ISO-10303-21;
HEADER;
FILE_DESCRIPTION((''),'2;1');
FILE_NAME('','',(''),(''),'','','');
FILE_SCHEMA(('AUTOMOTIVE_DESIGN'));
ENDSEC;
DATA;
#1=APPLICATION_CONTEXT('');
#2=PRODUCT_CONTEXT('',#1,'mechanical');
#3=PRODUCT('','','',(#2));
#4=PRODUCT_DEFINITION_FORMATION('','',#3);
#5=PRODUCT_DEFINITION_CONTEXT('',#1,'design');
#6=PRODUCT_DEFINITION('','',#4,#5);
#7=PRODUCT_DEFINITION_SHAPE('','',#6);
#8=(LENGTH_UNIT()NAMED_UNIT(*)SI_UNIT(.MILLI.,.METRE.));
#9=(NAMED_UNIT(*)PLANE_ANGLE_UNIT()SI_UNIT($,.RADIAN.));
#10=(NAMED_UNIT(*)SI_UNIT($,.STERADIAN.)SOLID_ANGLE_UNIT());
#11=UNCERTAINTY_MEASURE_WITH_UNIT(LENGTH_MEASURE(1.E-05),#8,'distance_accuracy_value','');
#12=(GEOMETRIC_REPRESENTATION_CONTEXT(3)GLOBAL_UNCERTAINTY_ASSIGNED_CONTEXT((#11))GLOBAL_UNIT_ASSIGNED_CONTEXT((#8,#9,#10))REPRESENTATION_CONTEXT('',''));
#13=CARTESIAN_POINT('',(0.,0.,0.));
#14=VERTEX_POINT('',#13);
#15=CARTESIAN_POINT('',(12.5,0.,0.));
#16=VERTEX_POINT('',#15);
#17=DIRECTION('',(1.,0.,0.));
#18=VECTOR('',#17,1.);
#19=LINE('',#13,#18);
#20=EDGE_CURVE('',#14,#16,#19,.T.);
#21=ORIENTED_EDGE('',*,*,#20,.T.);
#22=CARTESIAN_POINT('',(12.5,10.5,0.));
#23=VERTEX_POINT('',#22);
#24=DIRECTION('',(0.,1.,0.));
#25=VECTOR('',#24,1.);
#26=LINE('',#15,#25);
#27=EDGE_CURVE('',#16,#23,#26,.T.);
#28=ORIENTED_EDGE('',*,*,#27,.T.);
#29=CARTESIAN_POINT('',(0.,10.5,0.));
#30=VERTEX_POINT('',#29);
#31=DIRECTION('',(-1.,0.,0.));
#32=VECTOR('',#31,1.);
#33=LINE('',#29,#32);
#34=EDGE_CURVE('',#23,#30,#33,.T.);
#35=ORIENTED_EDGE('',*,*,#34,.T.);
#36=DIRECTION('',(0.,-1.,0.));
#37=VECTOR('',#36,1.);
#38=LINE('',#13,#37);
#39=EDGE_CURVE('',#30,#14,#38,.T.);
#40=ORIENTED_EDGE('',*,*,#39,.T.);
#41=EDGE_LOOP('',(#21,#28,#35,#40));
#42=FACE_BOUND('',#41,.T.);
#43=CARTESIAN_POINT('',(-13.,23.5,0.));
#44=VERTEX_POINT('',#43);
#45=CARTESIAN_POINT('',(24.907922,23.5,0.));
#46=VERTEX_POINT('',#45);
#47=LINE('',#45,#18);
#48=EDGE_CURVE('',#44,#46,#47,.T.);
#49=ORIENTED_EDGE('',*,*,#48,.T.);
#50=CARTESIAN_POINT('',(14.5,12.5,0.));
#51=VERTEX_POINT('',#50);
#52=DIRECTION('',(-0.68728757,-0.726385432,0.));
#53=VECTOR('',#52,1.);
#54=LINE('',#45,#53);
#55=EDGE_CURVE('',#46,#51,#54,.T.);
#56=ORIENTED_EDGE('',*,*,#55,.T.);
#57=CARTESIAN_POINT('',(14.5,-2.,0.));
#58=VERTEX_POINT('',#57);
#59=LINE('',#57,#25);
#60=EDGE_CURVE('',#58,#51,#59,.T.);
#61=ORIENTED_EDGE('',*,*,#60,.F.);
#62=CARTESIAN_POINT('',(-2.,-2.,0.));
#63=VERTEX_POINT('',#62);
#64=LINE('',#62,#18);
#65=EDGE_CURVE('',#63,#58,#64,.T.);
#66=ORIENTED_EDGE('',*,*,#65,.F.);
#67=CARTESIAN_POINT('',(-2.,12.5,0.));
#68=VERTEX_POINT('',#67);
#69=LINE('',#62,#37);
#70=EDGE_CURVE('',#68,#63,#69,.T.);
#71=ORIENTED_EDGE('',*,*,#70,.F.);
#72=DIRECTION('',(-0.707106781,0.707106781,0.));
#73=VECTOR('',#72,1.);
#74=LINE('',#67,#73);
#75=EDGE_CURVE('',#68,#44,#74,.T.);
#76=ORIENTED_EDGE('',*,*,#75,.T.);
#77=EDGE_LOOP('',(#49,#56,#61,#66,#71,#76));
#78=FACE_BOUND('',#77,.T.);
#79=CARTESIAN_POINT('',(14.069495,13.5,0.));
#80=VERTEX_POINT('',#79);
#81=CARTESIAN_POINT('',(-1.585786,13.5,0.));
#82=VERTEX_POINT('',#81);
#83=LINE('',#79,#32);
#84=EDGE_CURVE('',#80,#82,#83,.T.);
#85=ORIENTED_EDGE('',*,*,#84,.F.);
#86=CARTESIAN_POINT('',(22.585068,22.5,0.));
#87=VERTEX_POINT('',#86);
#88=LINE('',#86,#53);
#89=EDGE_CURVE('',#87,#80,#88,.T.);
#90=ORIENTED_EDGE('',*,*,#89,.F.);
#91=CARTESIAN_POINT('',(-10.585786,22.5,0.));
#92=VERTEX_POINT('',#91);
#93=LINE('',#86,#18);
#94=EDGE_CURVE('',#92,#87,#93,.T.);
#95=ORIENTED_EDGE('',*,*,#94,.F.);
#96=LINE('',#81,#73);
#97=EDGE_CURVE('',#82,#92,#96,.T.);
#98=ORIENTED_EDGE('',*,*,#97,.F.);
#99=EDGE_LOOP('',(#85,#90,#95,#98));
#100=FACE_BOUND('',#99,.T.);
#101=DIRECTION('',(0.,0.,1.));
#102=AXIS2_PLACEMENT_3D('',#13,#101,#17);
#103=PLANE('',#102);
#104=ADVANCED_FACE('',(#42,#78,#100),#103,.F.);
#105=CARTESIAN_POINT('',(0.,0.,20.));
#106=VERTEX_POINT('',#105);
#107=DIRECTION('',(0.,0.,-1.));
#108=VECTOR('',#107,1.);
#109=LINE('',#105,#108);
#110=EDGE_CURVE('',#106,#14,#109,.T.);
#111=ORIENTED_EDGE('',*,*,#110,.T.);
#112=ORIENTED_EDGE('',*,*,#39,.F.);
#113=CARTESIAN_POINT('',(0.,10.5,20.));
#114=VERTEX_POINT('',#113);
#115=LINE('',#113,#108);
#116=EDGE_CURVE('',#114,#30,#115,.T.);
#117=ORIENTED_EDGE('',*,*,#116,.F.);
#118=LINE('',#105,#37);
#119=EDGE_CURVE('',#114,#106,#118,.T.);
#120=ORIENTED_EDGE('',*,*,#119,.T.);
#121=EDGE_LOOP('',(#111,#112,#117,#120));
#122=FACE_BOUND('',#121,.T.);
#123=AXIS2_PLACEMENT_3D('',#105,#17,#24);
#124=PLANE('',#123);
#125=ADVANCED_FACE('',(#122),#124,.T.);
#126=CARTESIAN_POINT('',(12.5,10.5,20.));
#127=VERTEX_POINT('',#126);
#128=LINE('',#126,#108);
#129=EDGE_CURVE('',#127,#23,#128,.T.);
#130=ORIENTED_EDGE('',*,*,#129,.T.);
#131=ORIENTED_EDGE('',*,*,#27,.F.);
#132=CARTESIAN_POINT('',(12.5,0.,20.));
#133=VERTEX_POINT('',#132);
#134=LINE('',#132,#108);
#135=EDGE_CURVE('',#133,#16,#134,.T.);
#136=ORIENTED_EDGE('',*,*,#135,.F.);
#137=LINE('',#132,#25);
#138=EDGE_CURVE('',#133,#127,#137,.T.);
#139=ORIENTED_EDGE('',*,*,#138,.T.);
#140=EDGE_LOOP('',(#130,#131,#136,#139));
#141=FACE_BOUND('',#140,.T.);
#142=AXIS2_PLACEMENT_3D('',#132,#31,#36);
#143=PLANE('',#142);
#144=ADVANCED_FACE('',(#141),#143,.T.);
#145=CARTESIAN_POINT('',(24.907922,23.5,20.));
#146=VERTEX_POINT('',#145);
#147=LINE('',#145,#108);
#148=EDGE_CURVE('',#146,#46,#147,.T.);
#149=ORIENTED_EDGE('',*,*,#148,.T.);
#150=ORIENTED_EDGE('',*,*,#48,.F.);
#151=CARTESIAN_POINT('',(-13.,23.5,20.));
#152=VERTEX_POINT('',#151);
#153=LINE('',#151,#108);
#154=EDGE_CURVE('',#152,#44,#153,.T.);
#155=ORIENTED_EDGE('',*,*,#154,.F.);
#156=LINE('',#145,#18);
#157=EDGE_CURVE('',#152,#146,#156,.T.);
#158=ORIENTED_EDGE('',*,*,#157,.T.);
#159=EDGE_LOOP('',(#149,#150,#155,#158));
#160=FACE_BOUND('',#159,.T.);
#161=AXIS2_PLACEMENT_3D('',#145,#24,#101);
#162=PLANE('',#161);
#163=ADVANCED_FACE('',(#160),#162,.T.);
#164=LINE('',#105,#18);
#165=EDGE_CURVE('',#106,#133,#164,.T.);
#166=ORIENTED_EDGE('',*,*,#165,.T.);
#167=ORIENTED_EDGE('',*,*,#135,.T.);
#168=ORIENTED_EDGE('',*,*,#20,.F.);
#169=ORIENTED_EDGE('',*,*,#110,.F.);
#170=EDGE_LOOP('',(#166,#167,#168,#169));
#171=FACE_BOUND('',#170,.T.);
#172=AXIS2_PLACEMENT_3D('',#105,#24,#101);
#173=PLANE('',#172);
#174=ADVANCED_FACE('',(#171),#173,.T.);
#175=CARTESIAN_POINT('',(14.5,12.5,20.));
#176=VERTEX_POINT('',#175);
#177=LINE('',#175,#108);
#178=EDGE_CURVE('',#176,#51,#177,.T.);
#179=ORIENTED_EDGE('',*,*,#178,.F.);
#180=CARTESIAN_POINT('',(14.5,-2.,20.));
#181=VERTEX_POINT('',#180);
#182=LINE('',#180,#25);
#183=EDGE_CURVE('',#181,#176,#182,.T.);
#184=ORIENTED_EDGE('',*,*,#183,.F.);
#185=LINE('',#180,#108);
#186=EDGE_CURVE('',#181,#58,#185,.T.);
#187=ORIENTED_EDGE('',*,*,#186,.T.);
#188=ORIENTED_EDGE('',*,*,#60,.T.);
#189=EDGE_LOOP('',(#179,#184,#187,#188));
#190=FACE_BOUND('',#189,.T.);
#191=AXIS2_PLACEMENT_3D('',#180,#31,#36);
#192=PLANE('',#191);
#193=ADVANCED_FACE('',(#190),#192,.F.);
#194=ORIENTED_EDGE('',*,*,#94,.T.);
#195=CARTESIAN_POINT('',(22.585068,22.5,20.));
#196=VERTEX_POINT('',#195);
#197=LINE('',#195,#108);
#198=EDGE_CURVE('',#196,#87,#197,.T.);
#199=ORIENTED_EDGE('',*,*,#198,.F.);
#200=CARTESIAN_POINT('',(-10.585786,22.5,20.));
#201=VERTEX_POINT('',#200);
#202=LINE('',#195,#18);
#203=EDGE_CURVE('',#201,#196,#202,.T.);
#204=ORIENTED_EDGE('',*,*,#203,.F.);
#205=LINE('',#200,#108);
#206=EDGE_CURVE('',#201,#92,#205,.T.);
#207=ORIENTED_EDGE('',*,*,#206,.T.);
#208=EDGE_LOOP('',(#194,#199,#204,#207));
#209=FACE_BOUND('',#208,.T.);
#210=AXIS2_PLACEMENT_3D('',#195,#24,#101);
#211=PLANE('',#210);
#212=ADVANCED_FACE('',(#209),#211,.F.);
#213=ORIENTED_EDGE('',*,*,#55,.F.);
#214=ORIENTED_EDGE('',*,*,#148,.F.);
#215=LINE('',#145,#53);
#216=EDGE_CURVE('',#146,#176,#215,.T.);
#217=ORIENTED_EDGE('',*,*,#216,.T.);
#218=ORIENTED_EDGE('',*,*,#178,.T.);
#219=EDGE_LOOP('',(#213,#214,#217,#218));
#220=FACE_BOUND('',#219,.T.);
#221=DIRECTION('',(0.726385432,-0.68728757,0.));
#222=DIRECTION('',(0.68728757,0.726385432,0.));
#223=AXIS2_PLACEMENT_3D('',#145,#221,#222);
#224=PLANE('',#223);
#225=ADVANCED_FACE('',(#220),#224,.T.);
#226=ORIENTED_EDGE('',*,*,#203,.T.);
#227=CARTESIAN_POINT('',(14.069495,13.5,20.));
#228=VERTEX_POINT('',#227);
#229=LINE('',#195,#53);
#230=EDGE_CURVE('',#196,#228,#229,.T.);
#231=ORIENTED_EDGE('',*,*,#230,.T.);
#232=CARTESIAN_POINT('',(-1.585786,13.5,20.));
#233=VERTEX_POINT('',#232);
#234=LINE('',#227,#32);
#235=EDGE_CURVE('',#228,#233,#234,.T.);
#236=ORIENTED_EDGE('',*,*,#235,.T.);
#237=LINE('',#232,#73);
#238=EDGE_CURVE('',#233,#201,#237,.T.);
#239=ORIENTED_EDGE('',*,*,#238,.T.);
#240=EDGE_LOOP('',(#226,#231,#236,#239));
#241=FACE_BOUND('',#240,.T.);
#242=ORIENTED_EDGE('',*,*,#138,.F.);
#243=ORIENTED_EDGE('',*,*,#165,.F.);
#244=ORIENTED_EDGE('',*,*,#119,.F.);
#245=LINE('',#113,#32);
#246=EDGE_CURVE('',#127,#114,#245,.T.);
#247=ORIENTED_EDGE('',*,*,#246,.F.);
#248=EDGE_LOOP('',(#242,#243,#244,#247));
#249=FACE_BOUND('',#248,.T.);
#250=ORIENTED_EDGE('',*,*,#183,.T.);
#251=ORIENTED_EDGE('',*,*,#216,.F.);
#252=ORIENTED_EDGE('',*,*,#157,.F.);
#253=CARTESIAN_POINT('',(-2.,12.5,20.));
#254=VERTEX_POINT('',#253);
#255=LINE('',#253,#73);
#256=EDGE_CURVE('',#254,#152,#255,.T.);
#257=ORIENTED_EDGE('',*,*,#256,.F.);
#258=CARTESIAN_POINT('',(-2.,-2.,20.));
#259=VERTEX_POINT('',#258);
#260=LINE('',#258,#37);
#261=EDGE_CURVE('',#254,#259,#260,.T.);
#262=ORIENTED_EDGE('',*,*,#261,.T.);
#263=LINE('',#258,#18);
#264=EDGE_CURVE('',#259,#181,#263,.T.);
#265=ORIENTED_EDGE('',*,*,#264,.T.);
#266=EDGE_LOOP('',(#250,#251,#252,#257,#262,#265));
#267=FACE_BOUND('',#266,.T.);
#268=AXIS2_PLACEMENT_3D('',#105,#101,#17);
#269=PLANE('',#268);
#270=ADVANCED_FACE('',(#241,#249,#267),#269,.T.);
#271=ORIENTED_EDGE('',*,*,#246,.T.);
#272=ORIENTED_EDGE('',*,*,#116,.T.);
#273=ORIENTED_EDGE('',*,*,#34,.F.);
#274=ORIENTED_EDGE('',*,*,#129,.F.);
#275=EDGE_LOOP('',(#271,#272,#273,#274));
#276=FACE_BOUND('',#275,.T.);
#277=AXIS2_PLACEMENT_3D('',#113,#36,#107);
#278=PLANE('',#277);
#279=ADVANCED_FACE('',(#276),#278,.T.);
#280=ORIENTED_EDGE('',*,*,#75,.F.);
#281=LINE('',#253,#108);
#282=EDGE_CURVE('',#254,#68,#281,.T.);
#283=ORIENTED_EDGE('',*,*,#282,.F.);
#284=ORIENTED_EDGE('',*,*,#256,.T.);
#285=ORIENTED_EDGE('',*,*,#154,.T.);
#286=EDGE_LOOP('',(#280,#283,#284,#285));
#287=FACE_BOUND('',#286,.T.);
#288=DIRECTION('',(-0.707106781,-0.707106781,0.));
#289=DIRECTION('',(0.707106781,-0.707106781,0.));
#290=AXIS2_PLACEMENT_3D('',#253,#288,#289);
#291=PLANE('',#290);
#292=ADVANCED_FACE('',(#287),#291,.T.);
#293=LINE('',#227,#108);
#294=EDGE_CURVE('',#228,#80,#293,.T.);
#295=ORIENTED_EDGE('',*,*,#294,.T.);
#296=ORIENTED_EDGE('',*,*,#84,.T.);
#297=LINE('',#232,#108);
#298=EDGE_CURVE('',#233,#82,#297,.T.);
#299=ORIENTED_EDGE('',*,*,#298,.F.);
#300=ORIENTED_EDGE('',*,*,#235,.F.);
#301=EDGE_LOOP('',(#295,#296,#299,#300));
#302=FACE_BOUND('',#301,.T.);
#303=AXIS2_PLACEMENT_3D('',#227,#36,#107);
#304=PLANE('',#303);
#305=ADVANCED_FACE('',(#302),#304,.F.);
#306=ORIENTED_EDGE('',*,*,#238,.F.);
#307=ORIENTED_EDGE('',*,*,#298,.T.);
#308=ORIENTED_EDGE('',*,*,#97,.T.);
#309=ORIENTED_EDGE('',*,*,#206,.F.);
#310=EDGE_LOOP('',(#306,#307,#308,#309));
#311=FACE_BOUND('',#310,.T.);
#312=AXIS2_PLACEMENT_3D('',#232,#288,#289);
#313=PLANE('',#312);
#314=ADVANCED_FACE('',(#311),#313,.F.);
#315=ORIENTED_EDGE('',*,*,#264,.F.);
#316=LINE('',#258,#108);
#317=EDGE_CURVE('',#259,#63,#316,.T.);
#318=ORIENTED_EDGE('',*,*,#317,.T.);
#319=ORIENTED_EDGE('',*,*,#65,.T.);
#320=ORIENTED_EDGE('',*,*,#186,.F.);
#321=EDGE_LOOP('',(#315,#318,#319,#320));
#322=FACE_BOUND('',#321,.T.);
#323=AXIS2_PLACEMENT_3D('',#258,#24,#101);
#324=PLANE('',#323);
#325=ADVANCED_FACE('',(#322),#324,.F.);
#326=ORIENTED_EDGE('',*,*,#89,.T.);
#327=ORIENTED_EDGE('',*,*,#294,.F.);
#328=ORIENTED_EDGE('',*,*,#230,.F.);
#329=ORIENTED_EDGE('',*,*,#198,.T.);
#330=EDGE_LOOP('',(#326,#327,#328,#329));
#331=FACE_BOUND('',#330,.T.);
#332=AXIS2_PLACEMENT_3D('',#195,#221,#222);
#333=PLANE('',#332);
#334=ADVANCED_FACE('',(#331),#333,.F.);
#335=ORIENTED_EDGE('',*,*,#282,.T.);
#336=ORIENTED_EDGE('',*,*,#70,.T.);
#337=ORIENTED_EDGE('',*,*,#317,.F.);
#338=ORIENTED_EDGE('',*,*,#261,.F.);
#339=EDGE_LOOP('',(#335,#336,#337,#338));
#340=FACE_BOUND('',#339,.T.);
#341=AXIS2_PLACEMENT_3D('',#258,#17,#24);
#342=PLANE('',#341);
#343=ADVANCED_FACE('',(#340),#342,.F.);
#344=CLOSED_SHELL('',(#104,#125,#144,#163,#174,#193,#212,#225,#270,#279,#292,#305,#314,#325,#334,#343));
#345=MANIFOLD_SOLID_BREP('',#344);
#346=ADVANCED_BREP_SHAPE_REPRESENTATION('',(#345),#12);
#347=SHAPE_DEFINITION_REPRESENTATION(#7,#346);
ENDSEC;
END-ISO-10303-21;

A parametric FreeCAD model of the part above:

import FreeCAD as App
import Part
import Sketcher
Q = App.Units.Quantity

doc = App.newDocument("Part")
body = doc.addObject("PartDesign::Body", "Body")

# Sketch on XY plane
sketch1 = body.newObject("Sketcher::SketchObject", "Sketch")
sketch1.AttachmentSupport = (doc.getObject("XY_Plane"), [""])
sketch1.MapMode = "FlatFace"
sketch1.addGeometry(Part.LineSegment(App.Vector(-2, 12, 0), App.Vector(-2, -2, 0)), False)
sketch1.addGeometry(Part.LineSegment(App.Vector(-2, -2, 0), App.Vector(14, -2, 0)), False)
sketch1.addGeometry(Part.LineSegment(App.Vector(14, -2, 0), App.Vector(14, 12, 0)), False)
sketch1.addGeometry(Part.LineSegment(App.Vector(14, 12, 0), App.Vector(-2, 12, 0)), False)
sketch1.addGeometry(Part.LineSegment(App.Vector(12, 0, 0), App.Vector(0, 0, 0)), False)
sketch1.addGeometry(Part.LineSegment(App.Vector(0, 0, 0), App.Vector(0, 10, 0)), False)
sketch1.addGeometry(Part.LineSegment(App.Vector(0, 10, 0), App.Vector(12, 10, 0)), False)
sketch1.addGeometry(Part.LineSegment(App.Vector(12, 10, 0), App.Vector(12, 0, 0)), False)
sketch1.addConstraint(Sketcher.Constraint("Coincident", 0, 2, 1, 1))
sketch1.addConstraint(Sketcher.Constraint("Coincident", 1, 2, 2, 1))
sketch1.addConstraint(Sketcher.Constraint("Coincident", 2, 2, 3, 1))
sketch1.addConstraint(Sketcher.Constraint("Coincident", 3, 2, 0, 1))
sketch1.addConstraint(Sketcher.Constraint("Coincident", 4, 2, 5, 1))
sketch1.addConstraint(Sketcher.Constraint("Coincident", 5, 2, 6, 1))
sketch1.addConstraint(Sketcher.Constraint("Coincident", 6, 2, 7, 1))
sketch1.addConstraint(Sketcher.Constraint("Coincident", 7, 2, 4, 1))
sketch1.addConstraint(Sketcher.Constraint("Vertical", 0))
sketch1.addConstraint(Sketcher.Constraint("Horizontal", 1))
sketch1.addConstraint(Sketcher.Constraint("Vertical", 2))
sketch1.addConstraint(Sketcher.Constraint("Horizontal", 3))
sketch1.addConstraint(Sketcher.Constraint("Horizontal", 4))
sketch1.addConstraint(Sketcher.Constraint("Vertical", 5))
sketch1.addConstraint(Sketcher.Constraint("Horizontal", 6))
sketch1.addConstraint(Sketcher.Constraint("Vertical", 7))
sketch1.addConstraint(Sketcher.Constraint("Coincident", 4, 2, -1, 1))
sketch1.addConstraint(Sketcher.Constraint("DistanceX", 1, 1, 1, 2, 16.5))
sketch1.addConstraint(Sketcher.Constraint("DistanceX", 4, 2, 4, 1, 12.5))
sketch1.addConstraint(Sketcher.Constraint("DistanceY", 0, 2, 0, 1, 14.5))
sketch1.addConstraint(Sketcher.Constraint("DistanceY", 5, 1, 5, 2, 10.5))
sketch1.addConstraint(Sketcher.Constraint("DistanceX", 0, 2, -1, 1, 2.0))
sketch1.addConstraint(Sketcher.Constraint("DistanceY", 0, 2, -1, 1, 2.0))
pad1 = body.newObject("PartDesign::Pad", "Pad")
pad1.Profile = sketch1
pad1.Length = 20

# Sketch on XY plane
sketch2 = body.newObject("Sketcher::SketchObject", "Sketch001")
sketch2.AttachmentSupport = (doc.getObject("XY_Plane"), [""])
sketch2.MapMode = "FlatFace"
sketch2.addGeometry(Part.LineSegment(App.Vector(-2, 12, 0), App.Vector(-13, 24, 0)), False)
sketch2.addGeometry(Part.LineSegment(App.Vector(-13, 24, 0), App.Vector(25, 24, 0)), False)
sketch2.addGeometry(Part.LineSegment(App.Vector(25, 24, 0), App.Vector(14, 12, 0)), False)
sketch2.addGeometry(Part.LineSegment(App.Vector(14, 12, 0), App.Vector(-2, 12, 0)), False)
sketch2.addGeometry(Part.LineSegment(App.Vector(14, 14, 0), App.Vector(23, 22, 0)), False)
sketch2.addGeometry(Part.LineSegment(App.Vector(23, 22, 0), App.Vector(-11, 22, 0)), False)
sketch2.addGeometry(Part.LineSegment(App.Vector(-11, 22, 0), App.Vector(-2, 14, 0)), False)
sketch2.addGeometry(Part.LineSegment(App.Vector(-2, 14, 0), App.Vector(14, 14, 0)), False)
sketch2.addConstraint(Sketcher.Constraint("Coincident", 0, 2, 1, 1))
sketch2.addConstraint(Sketcher.Constraint("Coincident", 1, 2, 2, 1))
sketch2.addConstraint(Sketcher.Constraint("Coincident", 2, 2, 3, 1))
sketch2.addConstraint(Sketcher.Constraint("Coincident", 3, 2, 0, 1))
sketch2.addConstraint(Sketcher.Constraint("Coincident", 4, 2, 5, 1))
sketch2.addConstraint(Sketcher.Constraint("Coincident", 5, 2, 6, 1))
sketch2.addConstraint(Sketcher.Constraint("Coincident", 6, 2, 7, 1))
sketch2.addConstraint(Sketcher.Constraint("Coincident", 7, 2, 4, 1))
sketch2.addConstraint(Sketcher.Constraint("Horizontal", 1))
sketch2.addConstraint(Sketcher.Constraint("Horizontal", 3))
sketch2.addConstraint(Sketcher.Constraint("Horizontal", 5))
sketch2.addConstraint(Sketcher.Constraint("Horizontal", 7))
sketch2.addConstraint(Sketcher.Constraint("Parallel", 2, 4))
sketch2.addConstraint(Sketcher.Constraint("Parallel", 0, 6))
sketch2.addConstraint(Sketcher.Constraint("Angle", 0, Q("135 deg")))
sketch2.addConstraint(Sketcher.Constraint("DistanceX", 3, 2, 3, 1, 16.5))
sketch2.addConstraint(Sketcher.Constraint("DistanceX", 0, 2, -1, 1, 13.0))
sketch2.addConstraint(Sketcher.Constraint("DistanceX", 3, 2, -1, 1, 2.0))
sketch2.addConstraint(Sketcher.Constraint("DistanceY", 4, 2, 1, 2, 1.0))
sketch2.addConstraint(Sketcher.Constraint("DistanceY", 3, 2, 6, 2, 1.0))
sketch2.addConstraint(Sketcher.Constraint("DistanceY", -1, 1, 0, 2, 23.5))
sketch2.addConstraint(Sketcher.Constraint("DistanceX", 7, 1, 7, 2, 15.655282))
sketch2.addConstraint(Sketcher.Constraint("DistanceX", 1, 1, 1, 2, 37.907922))
sketch2.addConstraint(Sketcher.Constraint("DistanceX", -1, 1, 4, 2, 22.585068))
pad2 = body.newObject("PartDesign::Pad", "Pad001")
pad2.Profile = sketch2
pad2.Length = 20

doc.recompute()
